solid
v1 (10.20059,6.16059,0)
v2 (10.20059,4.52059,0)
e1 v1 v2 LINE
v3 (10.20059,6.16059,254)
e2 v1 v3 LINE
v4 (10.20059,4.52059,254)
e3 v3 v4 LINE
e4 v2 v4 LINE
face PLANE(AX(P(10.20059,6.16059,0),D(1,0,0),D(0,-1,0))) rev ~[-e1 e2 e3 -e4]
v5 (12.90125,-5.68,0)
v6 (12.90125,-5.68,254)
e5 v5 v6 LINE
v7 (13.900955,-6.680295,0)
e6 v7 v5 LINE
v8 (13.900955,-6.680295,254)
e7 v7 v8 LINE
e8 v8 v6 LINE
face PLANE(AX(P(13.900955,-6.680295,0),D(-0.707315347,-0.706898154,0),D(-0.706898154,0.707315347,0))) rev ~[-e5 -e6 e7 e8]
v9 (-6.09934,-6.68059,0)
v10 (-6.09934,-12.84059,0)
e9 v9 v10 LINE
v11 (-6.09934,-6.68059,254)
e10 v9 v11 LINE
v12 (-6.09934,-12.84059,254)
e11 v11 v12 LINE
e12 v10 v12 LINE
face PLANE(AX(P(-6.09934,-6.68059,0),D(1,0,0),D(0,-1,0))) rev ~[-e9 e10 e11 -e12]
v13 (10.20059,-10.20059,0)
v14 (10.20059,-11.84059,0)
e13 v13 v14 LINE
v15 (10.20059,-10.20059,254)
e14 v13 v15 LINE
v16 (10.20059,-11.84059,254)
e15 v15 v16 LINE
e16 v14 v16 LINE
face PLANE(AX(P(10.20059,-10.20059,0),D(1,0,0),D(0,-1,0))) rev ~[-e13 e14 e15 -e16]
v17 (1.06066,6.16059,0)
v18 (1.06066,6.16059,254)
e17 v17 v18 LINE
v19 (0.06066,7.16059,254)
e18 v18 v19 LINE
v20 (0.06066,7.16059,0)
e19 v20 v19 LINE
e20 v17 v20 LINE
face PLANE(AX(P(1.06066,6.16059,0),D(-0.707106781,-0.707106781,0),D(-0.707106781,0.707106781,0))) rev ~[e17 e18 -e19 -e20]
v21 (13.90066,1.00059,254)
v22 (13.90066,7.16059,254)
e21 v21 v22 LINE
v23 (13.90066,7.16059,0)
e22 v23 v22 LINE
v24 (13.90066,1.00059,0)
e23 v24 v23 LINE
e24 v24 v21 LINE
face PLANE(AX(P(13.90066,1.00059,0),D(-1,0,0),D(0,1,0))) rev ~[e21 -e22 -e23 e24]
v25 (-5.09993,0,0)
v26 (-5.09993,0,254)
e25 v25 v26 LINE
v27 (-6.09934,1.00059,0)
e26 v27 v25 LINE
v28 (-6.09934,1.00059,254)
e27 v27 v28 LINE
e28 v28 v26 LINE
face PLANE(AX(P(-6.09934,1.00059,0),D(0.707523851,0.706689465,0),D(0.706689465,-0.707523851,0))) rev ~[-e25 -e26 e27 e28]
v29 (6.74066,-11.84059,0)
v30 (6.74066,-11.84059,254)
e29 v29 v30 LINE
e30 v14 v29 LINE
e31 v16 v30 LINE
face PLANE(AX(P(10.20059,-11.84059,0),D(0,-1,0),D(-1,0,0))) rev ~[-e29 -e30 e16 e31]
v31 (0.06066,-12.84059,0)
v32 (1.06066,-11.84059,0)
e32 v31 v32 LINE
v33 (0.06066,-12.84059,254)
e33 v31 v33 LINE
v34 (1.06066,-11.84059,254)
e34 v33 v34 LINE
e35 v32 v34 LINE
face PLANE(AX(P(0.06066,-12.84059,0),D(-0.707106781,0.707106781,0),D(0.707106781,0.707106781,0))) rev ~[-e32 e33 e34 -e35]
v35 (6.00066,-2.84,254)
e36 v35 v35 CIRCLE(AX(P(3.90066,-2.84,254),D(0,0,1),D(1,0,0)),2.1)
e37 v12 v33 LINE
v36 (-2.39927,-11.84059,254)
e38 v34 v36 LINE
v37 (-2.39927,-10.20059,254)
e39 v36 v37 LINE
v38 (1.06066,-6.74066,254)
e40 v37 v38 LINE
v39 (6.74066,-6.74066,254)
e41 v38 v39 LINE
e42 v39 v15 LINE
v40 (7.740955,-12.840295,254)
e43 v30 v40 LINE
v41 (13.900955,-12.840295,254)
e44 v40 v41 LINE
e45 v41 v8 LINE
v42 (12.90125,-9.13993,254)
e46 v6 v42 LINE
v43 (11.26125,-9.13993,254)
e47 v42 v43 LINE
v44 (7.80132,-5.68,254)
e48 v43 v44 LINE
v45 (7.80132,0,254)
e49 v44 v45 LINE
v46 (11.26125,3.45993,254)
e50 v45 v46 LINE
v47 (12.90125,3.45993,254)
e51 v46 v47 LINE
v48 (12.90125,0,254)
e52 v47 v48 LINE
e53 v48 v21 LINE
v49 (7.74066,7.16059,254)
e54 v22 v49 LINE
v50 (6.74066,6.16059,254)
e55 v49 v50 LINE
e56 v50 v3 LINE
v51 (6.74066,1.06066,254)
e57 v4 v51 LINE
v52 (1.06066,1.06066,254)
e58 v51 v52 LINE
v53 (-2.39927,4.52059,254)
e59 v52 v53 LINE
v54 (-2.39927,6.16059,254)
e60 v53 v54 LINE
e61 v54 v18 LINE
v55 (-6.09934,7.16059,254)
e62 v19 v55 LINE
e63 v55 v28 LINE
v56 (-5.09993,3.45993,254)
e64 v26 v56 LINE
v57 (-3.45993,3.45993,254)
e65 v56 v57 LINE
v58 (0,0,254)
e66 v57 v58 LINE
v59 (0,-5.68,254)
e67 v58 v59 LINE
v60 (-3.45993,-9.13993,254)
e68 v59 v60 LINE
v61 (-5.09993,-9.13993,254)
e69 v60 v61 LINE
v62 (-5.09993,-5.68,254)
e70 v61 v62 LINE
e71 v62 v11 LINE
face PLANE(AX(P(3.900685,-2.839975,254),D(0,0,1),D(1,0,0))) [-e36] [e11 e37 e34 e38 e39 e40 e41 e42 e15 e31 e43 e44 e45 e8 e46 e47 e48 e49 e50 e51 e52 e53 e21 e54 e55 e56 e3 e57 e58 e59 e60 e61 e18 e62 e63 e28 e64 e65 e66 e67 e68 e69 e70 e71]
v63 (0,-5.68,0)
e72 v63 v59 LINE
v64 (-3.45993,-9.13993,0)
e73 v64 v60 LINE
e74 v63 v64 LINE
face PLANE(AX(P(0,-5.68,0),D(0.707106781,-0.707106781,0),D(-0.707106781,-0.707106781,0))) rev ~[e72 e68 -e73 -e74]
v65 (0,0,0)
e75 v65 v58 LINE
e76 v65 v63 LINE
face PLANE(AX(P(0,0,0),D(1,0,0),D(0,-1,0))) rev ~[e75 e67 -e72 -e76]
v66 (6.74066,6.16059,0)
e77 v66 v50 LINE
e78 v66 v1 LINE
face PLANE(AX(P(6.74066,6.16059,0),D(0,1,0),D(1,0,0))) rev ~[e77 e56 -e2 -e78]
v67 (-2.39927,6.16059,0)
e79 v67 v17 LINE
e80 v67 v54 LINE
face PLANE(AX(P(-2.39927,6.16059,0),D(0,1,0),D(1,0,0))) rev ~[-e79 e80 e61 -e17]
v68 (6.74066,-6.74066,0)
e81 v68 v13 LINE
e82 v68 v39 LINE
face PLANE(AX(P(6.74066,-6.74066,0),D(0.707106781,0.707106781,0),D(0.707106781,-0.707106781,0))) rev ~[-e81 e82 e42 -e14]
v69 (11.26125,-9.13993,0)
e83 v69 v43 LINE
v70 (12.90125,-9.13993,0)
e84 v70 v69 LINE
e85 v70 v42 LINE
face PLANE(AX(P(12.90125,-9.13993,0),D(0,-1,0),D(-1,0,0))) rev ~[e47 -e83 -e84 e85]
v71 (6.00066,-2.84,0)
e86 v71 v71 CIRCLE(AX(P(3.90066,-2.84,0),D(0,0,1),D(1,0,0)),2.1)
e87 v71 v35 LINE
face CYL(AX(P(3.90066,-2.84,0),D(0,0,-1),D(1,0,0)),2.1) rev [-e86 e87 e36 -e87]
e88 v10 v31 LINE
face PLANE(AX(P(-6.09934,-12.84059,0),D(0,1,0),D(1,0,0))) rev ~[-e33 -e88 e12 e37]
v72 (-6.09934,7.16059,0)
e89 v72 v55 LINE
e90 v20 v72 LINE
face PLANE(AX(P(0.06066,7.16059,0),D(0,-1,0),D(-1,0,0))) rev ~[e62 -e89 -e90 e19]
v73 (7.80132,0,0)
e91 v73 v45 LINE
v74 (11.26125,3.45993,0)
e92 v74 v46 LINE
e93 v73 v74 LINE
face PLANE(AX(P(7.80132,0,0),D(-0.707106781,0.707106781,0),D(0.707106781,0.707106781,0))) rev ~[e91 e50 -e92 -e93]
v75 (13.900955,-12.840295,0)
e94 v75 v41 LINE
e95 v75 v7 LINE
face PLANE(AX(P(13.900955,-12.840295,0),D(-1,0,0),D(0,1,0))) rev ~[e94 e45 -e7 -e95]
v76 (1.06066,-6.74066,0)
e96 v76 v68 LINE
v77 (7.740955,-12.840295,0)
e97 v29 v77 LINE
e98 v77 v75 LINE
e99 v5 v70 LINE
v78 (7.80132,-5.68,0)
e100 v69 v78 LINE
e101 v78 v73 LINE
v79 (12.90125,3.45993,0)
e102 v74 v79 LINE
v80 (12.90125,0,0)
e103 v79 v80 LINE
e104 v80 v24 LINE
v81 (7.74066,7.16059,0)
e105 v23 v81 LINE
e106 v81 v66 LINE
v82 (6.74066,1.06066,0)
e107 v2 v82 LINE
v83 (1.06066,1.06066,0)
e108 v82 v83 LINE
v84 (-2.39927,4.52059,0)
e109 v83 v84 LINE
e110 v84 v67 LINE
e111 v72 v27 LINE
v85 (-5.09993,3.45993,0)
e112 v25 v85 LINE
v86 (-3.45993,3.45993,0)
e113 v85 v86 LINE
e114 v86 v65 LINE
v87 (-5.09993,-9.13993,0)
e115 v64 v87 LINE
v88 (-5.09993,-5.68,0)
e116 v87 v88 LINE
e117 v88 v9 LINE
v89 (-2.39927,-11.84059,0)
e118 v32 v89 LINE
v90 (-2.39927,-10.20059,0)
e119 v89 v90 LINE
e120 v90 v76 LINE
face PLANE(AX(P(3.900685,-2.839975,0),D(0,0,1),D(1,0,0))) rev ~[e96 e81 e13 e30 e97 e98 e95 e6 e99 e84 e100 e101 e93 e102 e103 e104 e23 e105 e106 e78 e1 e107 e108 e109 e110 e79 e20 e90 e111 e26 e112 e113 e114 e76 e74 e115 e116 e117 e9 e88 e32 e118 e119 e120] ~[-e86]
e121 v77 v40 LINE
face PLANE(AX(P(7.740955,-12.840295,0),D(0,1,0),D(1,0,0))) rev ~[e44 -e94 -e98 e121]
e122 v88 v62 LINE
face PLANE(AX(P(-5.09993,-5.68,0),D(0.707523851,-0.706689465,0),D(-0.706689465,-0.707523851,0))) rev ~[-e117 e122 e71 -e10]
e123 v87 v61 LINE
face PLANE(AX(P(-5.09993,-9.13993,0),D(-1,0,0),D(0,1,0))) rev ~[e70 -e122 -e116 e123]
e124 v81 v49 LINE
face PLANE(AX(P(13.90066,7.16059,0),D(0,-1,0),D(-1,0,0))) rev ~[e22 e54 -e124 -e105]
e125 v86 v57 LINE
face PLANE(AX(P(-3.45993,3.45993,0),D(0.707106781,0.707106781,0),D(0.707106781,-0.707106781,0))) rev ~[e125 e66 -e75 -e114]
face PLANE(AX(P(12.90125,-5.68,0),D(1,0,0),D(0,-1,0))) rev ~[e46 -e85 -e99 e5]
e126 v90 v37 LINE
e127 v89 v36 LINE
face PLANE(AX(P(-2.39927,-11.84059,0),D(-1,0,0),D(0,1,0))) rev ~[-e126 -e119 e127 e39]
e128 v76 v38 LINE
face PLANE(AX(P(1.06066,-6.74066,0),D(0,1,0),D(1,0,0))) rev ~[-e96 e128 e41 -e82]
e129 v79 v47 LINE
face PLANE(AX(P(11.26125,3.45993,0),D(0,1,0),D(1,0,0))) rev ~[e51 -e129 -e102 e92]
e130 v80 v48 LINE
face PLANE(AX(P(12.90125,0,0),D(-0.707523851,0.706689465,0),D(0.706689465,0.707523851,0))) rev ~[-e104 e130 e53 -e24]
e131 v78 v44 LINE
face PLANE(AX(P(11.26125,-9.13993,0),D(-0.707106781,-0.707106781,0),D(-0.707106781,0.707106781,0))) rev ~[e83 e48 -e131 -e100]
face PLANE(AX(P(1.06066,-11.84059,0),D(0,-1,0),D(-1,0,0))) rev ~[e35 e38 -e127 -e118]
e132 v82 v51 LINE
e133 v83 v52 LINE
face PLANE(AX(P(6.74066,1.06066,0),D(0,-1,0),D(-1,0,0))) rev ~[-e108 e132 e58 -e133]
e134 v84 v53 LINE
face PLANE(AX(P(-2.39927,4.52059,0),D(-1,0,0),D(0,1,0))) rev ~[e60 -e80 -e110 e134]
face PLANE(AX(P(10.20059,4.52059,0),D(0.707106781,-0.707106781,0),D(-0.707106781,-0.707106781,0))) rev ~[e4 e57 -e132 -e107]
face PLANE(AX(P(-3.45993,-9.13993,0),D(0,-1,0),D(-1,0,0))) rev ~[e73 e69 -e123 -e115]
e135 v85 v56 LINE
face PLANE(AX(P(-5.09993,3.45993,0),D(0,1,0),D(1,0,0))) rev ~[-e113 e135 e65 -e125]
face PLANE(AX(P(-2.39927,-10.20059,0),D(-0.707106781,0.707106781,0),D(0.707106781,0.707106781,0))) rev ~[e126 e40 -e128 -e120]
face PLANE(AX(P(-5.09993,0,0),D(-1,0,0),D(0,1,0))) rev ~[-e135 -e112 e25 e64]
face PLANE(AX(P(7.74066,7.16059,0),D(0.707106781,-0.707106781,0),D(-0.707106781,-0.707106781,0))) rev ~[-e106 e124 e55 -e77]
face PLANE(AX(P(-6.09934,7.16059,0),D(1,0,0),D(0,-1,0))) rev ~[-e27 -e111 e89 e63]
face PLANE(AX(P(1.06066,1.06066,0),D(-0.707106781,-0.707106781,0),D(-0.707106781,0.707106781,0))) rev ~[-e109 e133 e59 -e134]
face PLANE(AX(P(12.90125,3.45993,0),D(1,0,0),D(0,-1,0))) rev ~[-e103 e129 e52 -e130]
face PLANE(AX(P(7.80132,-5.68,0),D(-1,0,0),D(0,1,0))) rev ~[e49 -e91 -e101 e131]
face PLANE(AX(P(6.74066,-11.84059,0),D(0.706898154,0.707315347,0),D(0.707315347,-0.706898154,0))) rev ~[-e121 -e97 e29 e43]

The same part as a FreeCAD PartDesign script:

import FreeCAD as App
import Part
import Sketcher
from FreeCAD import Vector
Q = App.Units.Quantity


def add_polygon(sketch, points):
    """Adds a closed chain of lines whose ends are joined by coincident constraints."""
    first, n = sketch.GeometryCount, len(points)
    for a, b in zip(points, points[1:] + points[:1]):
        sketch.addGeometry(Part.LineSegment(App.Vector(*a, 0), App.Vector(*b, 0)), False)
    for i in range(n):
        sketch.addConstraint(Sketcher.Constraint("Coincident", first + i, 2, first + (i + 1) % n, 1))

doc = App.newDocument("Part")
body = doc.addObject("PartDesign::Body", "Body")

sketch1 = body.newObject("Sketcher::SketchObject", "Sketch")
sketch1.AttachmentSupport = (doc.getObject("XY_Plane"), [""])
sketch1.MapMode = "FlatFace"
add_polygon(sketch1, [(-3.5, 3.5), (0, 0), (0, -5.7), (-3.5, -9.1), (-5.1, -9.1), (-5.1, -5.7), (-6.1, -6.7), (-6.1, -12.8), (0.1, -12.8), (1.1, -11.8), (-2.4, -11.8), (-2.4, -10.2), (1.1, -6.7), (6.7, -6.7), (10.2, -10.2), (10.2, -11.8), (6.7, -11.8), (7.7, -12.8), (13.9, -12.8), (13.9, -6.7), (12.9, -5.7), (12.9, -9.1), (11.3, -9.1), (7.8, -5.7), (7.8, 0), (11.3, 3.5), (12.9, 3.5), (12.9, 0), (13.9, 1), (13.9, 7.2), (7.7, 7.2), (6.7, 6.2), (10.2, 6.2), (10.2, 4.5), (6.7, 1.1), (1.1, 1.1), (-2.4, 4.5), (-2.4, 6.2), (1.1, 6.2), (0.1, 7.2), (-6.1, 7.2), (-6.1, 1), (-5.1, 0), (-5.1, 3.5)])
sketch1.addGeometry(Part.Circle(Vector(3.9, -2.8, 0), Vector(0, 0, 1), 2.1), False)
sketch1.addConstraint(Sketcher.Constraint("Vertical", 1))
sketch1.addConstraint(Sketcher.Constraint("Horizontal", 3))
sketch1.addConstraint(Sketcher.Constraint("Vertical", 4))
sketch1.addConstraint(Sketcher.Constraint("Vertical", 6))
sketch1.addConstraint(Sketcher.Constraint("Horizontal", 7))
sketch1.addConstraint(Sketcher.Constraint("Horizontal", 9))
sketch1.addConstraint(Sketcher.Constraint("Vertical", 10))
sketch1.addConstraint(Sketcher.Constraint("Horizontal", 12))
sketch1.addConstraint(Sketcher.Constraint("Vertical", 14))
sketch1.addConstraint(Sketcher.Constraint("Horizontal", 15))
sketch1.addConstraint(Sketcher.Constraint("Horizontal", 17))
sketch1.addConstraint(Sketcher.Constraint("Vertical", 18))
sketch1.addConstraint(Sketcher.Constraint("Vertical", 20))
sketch1.addConstraint(Sketcher.Constraint("Horizontal", 21))
sketch1.addConstraint(Sketcher.Constraint("Vertical", 23))
sketch1.addConstraint(Sketcher.Constraint("Horizontal", 25))
sketch1.addConstraint(Sketcher.Constraint("Vertical", 26))
sketch1.addConstraint(Sketcher.Constraint("Vertical", 28))
sketch1.addConstraint(Sketcher.Constraint("Horizontal", 29))
sketch1.addConstraint(Sketcher.Constraint("Horizontal", 31))
sketch1.addConstraint(Sketcher.Constraint("Vertical", 32))
sketch1.addConstraint(Sketcher.Constraint("Horizontal", 34))
sketch1.addConstraint(Sketcher.Constraint("Vertical", 36))
sketch1.addConstraint(Sketcher.Constraint("Horizontal", 37))
sketch1.addConstraint(Sketcher.Constraint("Horizontal", 39))
sketch1.addConstraint(Sketcher.Constraint("Vertical", 40))
sketch1.addConstraint(Sketcher.Constraint("Vertical", 42))
sketch1.addConstraint(Sketcher.Constraint("Horizontal", 43))
sketch1.addConstraint(Sketcher.Constraint("Coincident", 0, 2, -1, 1))
sketch1.addConstraint(Sketcher.Constraint("PointOnObject", 23, 2, -1))
sketch1.addConstraint(Sketcher.Constraint("PointOnObject", 26, 2, -1))
sketch1.addConstraint(Sketcher.Constraint("PointOnObject", 41, 2, -1))
sketch1.addConstraint(Sketcher.Constraint("Perpendicular", 0, 2))
sketch1.addConstraint(Sketcher.Constraint("Parallel", 2, 8))
sketch1.addConstraint(Sketcher.Constraint("Parallel", 8, 11))
sketch1.addConstraint(Sketcher.Constraint("Perpendicular", 11, 13))
sketch1.addConstraint(Sketcher.Constraint("Parallel", 13, 22))
sketch1.addConstraint(Sketcher.Constraint("Perpendicular", 22, 24))
sketch1.addConstraint(Sketcher.Constraint("Parallel", 5, 27))
sketch1.addConstraint(Sketcher.Constraint("Parallel", 24, 30))
sketch1.addConstraint(Sketcher.Constraint("Parallel", 30, 33))
sketch1.addConstraint(Sketcher.Constraint("Perpendicular", 33, 35))
sketch1.addConstraint(Sketcher.Constraint("Parallel", 35, 38))
sketch1.addConstraint(Sketcher.Constraint("Horizontal", 1, 2, 4, 2))
sketch1.addConstraint(Sketcher.Constraint("Horizontal", 10, 2, 13, 2))
sketch1.addConstraint(Sketcher.Constraint("Horizontal", 9, 2, 14, 2))
sketch1.addConstraint(Sketcher.Constraint("Horizontal", 4, 2, 19, 2))
sketch1.addConstraint(Sketcher.Constraint("Horizontal", 3, 2, 20, 2))
sketch1.addConstraint(Sketcher.Constraint("Horizontal", 19, 2, 22, 2))
sketch1.addConstraint(Sketcher.Constraint("Horizontal", 32, 2, 35, 2))
sketch1.addConstraint(Sketcher.Constraint("Horizontal", 31, 2, 36, 2))
sketch1.addConstraint(Sketcher.Constraint("Horizontal", 29, 2, 38, 2))
sketch1.addConstraint(Sketcher.Constraint("Horizontal", 27, 2, 40, 2))
sketch1.addConstraint(Sketcher.Constraint("Horizontal", 25, 2, 42, 2))
sketch1.addConstraint(Sketcher.Constraint("Vertical", 8, 2, 11, 2))
sketch1.addConstraint(Sketcher.Constraint("Vertical", 12, 2, 15, 2))
sketch1.addConstraint(Sketcher.Constraint("Vertical", 21, 2, 24, 2))
sketch1.addConstraint(Sketcher.Constraint("Vertical", 20, 2, 25, 2))
sketch1.addConstraint(Sketcher.Constraint("Vertical", 15, 2, 30, 2))
sketch1.addConstraint(Sketcher.Constraint("Vertical", 14, 2, 31, 2))
sketch1.addConstraint(Sketcher.Constraint("Vertical", 30, 2, 33, 2))
sketch1.addConstraint(Sketcher.Constraint("Vertical", 11, 2, 34, 2))
sketch1.addConstraint(Sketcher.Constraint("Vertical", 10, 2, 35, 2))
sketch1.addConstraint(Sketcher.Constraint("Vertical", 34, 2, 37, 2))
sketch1.addConstraint(Sketcher.Constraint("Vertical", 7, 2, 38, 2))
sketch1.addConstraint(Sketcher.Constraint("Vertical", 6, 2, 39, 2))
sketch1.addConstraint(Sketcher.Constraint("Vertical", 4, 2, 41, 2))
sketch1.addConstraint(Sketcher.Constraint("Equal", 7, 17))
sketch1.addConstraint(Sketcher.Constraint("Equal", 3, 21))
sketch1.addConstraint(Sketcher.Constraint("Equal", 17, 29))
sketch1.addConstraint(Sketcher.Constraint("Equal", 34, 1))
sketch1.addConstraint(Sketcher.Constraint("Equal", 37, 4))
sketch1.addConstraint(Sketcher.Constraint("Equal", 39, 6))
sketch1.addConstraint(Sketcher.Constraint("Equal", 43, 10))
sketch1.addConstraint(Sketcher.Constraint("Equal", 6, 18))
sketch1.addConstraint(Sketcher.Constraint("Equal", 18, 28))
sketch1.addConstraint(Sketcher.Constraint("Equal", 14, 32))
sketch1.addConstraint(Sketcher.Constraint("Equal", 5, 8))
sketch1.addConstraint(Sketcher.Constraint("Equal", 8, 16))
sketch1.addConstraint(Sketcher.Constraint("Equal", 16, 19))
sketch1.addConstraint(Sketcher.Constraint("Diameter", 44, Q("4.2 mm")))
sketch1.addConstraint(Sketcher.Constraint("DistanceX", 7, 2, 8, 2, Q("1 mm")))
sketch1.addConstraint(Sketcher.Constraint("DistanceX", 3, 2, 3, 1, Q("1.64 mm")))
sketch1.addConstraint(Sketcher.Constraint("DistanceX", 7, 1, 7, 2, Q("6.16 mm")))
sketch1.addConstraint(Sketcher.Constraint("DistanceX", 12, 1, 12, 2, Q("5.68 mm")))
sketch1.addConstraint(Sketcher.Constraint("DistanceY", 44, 3, -1, 1, Q("2.84 mm")))
sketch1.addConstraint(Sketcher.Constraint("DistanceX", 11, 2, 44, 3, Q("2.84 mm")))
sketch1.addConstraint(Sketcher.Constraint("DistanceX", 9, 2, 9, 1, Q("3.45993 mm")))
sketch1.addConstraint(Sketcher.Constraint("DistanceX", -1, 1, 44, 3, Q("3.90066 mm")))
sketch1.addConstraint(Sketcher.Constraint("DistanceX", -1, 1, 16, 2, Q("7.740955 mm")))
pad1 = body.newObject("PartDesign::Pad", "Pad")
pad1.Profile = sketch1
pad1.Length = 254

doc.recompute()
